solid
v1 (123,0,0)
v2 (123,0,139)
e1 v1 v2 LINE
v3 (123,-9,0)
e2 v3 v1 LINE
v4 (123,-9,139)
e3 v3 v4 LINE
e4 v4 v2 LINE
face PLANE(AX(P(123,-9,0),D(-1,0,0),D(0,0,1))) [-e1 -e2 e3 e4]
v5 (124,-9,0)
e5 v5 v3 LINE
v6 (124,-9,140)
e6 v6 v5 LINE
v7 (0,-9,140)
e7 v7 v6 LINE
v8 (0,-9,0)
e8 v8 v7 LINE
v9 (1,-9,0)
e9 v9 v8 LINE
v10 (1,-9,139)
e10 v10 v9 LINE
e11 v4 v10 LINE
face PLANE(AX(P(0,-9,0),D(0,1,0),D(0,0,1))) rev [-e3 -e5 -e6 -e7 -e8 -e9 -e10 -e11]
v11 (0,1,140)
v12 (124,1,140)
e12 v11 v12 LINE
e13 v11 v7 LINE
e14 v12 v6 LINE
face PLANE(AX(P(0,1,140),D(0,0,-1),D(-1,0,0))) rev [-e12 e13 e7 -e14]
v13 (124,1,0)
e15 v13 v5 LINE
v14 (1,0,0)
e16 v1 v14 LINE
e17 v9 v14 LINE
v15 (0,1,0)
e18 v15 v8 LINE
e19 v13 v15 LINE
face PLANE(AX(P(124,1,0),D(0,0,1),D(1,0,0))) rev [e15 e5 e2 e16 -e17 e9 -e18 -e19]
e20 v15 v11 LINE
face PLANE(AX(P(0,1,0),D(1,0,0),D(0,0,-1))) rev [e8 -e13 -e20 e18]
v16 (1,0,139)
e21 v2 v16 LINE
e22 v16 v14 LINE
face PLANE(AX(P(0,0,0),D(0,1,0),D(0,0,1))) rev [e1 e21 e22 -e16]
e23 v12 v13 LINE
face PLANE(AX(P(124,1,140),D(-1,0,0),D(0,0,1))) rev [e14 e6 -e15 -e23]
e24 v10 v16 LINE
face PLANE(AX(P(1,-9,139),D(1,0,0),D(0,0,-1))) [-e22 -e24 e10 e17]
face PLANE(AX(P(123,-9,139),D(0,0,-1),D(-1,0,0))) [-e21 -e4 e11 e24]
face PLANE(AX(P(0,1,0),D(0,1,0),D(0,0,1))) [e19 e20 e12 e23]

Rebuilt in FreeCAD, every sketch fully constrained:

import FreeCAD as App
import Part
import Sketcher

V = App.Vector
Q = App.Units.Quantity


def add_polygon(sketch, points):
    """Adds a closed chain of lines whose ends are joined by coincident constraints."""
    first, n = sketch.GeometryCount, len(points)
    for a, b in zip(points, points[1:] + points[:1]):
        sketch.addGeometry(Part.LineSegment(App.Vector(*a, 0), App.Vector(*b, 0)), False)
    for i in range(n):
        sketch.addConstraint(Sketcher.Constraint("Coincident", first + i, 2, first + (i + 1) % n, 1))

doc = App.newDocument("Part")
params = doc.addObject("Spreadsheet::Sheet", "Params")
for row, (alias, value) in enumerate([
    ("sketch1_width", "124 mm"),
    ("sketch1_height", "140 mm"),
    ("pad1_length", "1 mm"),
    ("sketch2_width", "124 mm"),
    ("sketch2_width2", "1 mm"),
    ("sketch2_height", "140 mm"),
    ("sketch2_height2", "139 mm"),
    ("pad2_length", "10 mm"),
], start=1):
    params.set(f"A{row}", alias)
    params.set(f"B{row}", "=" + value)
    params.setAlias(f"B{row}", alias)

body = doc.addObject("PartDesign::Body", "Body")

sketch1 = doc.addObject("Sketcher::SketchObject", "Sketch")
body.addObject(sketch1)
sketch1.AttachmentSupport = (doc.XZ_Plane, [""])
sketch1.MapMode = "FlatFace"
add_polygon(sketch1, [(0, 0), (0, 140), (124, 140), (124, 0)])
sketch1.addConstraint(Sketcher.Constraint("Vertical", 0))
sketch1.addConstraint(Sketcher.Constraint("Horizontal", 1))
sketch1.addConstraint(Sketcher.Constraint("Vertical", 2))
sketch1.addConstraint(Sketcher.Constraint("Horizontal", 3))
sketch1.addConstraint(Sketcher.Constraint("Coincident", 3, 2, -1, 1))
sketch1.addConstraint(Sketcher.Constraint("DistanceX", 1, 1, 1, 2, Q("124 mm")))
sketch1.addConstraint(Sketcher.Constraint("DistanceY", 0, 1, 0, 2, Q("140 mm")))
sketch1.setExpression("Constraints[9]", "Params.sketch1_width")
sketch1.setExpression("Constraints[10]", "Params.sketch1_height")
pad1 = doc.addObject("PartDesign::Pad", "Pad")
body.addObject(pad1)
pad1.Profile = sketch1
pad1.setExpression("Length", "Params.pad1_length")
pad1.Reversed = True

sketch2 = doc.addObject("Sketcher::SketchObject", "Sketch001")
body.addObject(sketch2)
sketch2.AttachmentSupport = (doc.XZ_Plane, [""])
sketch2.MapMode = "FlatFace"
sketch2.AttachmentOffset = App.Placement(V(0, 0, -1), App.Rotation())
add_polygon(sketch2, [(0, 0), (0, 140), (124, 140), (124, 0), (123, 0), (123, 139), (1, 139), (1, 0)])
sketch2.addConstraint(Sketcher.Constraint("Vertical", 0))
sketch2.addConstraint(Sketcher.Constraint("Horizontal", 1))
sketch2.addConstraint(Sketcher.Constraint("Vertical", 2))
sketch2.addConstraint(Sketcher.Constraint("Horizontal", 3))
sketch2.addConstraint(Sketcher.Constraint("Vertical", 4))
sketch2.addConstraint(Sketcher.Constraint("Horizontal", 5))
sketch2.addConstraint(Sketcher.Constraint("Vertical", 6))
sketch2.addConstraint(Sketcher.Constraint("Horizontal", 7))
sketch2.addConstraint(Sketcher.Constraint("Coincident", 7, 2, -1, 1))
sketch2.addConstraint(Sketcher.Constraint("PointOnObject", 2, 2, -1))
sketch2.addConstraint(Sketcher.Constraint("Equal", 3, 7))
sketch2.addConstraint(Sketcher.Constraint("DistanceX", 1, 1, 1, 2, Q("124 mm")))
sketch2.addConstraint(Sketcher.Constraint("DistanceX", 3, 2, 3, 1, Q("1 mm")))
sketch2.addConstraint(Sketcher.Constraint("DistanceY", 0, 1, 0, 2, Q("140 mm")))
sketch2.addConstraint(Sketcher.Constraint("DistanceY", 4, 1, 4, 2, Q("139 mm")))
sketch2.setExpression("Constraints[19]", "Params.sketch2_width")
sketch2.setExpression("Constraints[20]", "Params.sketch2_width2")
sketch2.setExpression("Constraints[21]", "Params.sketch2_height")
sketch2.setExpression("Constraints[22]", "Params.sketch2_height2")
pad2 = doc.addObject("PartDesign::Pad", "Pad001")
body.addObject(pad2)
pad2.Profile = sketch2
pad2.setExpression("Length", "Params.pad2_length")

doc.recompute()
